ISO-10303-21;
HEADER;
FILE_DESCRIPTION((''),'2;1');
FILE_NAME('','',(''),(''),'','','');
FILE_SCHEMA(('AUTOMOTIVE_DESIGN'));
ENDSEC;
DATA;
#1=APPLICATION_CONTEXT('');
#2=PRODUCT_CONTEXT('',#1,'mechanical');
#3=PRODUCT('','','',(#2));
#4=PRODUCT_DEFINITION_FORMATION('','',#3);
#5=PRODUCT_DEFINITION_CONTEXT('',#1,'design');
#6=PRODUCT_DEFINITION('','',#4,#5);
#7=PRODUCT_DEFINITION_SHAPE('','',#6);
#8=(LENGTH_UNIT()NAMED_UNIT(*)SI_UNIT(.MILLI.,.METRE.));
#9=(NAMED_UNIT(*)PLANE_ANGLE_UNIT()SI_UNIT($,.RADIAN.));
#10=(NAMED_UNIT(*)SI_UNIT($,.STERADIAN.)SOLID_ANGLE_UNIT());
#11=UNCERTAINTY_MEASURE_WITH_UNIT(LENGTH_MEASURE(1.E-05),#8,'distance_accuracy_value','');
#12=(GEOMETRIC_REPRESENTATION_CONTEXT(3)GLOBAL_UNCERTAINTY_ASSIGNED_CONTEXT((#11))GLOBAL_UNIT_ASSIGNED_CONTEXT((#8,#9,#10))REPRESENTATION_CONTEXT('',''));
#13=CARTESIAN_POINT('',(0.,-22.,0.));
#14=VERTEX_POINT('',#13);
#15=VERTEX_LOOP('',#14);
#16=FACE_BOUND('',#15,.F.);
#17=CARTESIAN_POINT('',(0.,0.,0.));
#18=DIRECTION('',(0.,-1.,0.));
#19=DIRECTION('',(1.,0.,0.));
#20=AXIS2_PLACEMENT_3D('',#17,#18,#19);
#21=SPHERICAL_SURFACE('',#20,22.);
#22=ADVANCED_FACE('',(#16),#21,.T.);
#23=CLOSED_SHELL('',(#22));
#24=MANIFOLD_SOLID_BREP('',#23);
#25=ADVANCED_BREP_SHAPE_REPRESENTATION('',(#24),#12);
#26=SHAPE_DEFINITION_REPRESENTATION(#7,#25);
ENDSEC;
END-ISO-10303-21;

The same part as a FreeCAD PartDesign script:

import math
import FreeCAD as App
import Part
import Sketcher

V = App.Vector
Q = App.Units.Quantity

doc = App.newDocument("Part")
body = doc.addObject("PartDesign::Body", "Body")

# Sketch on XY plane
sketch1 = body.newObject("Sketcher::SketchObject", "Sketch")
sketch1.AttachmentSupport = (doc.getObject("XY_Plane"), [""])
sketch1.MapMode = "FlatFace"
sketch1.addGeometry([
    Part.LineSegment(V(0, 22, 0), V(0, -22, 0)),
    Part.ArcOfCircle(Part.Circle(V(0, 0, 0), V(0, 0, 1), 22), math.radians(-90), math.radians(90)),
], False)
sketch1.addConstraint([
    Sketcher.Constraint("Coincident", 0, 1, 1, 2),
    Sketcher.Constraint("Coincident", 1, 1, 0, 2),
    Sketcher.Constraint("Vertical", 0),
    Sketcher.Constraint("Coincident", 1, 3, -1, 1),
    Sketcher.Constraint("PointOnObject", 0, 1, -2),
    Sketcher.Constraint("Radius", 1, Q("22 mm")),
])
revolution = body.newObject("PartDesign::Revolution", "Revolution")
revolution.Profile = sketch1
revolution.ReferenceAxis = (sketch1, ["V_Axis"])
revolution.Angle = 360

doc.recompute()
